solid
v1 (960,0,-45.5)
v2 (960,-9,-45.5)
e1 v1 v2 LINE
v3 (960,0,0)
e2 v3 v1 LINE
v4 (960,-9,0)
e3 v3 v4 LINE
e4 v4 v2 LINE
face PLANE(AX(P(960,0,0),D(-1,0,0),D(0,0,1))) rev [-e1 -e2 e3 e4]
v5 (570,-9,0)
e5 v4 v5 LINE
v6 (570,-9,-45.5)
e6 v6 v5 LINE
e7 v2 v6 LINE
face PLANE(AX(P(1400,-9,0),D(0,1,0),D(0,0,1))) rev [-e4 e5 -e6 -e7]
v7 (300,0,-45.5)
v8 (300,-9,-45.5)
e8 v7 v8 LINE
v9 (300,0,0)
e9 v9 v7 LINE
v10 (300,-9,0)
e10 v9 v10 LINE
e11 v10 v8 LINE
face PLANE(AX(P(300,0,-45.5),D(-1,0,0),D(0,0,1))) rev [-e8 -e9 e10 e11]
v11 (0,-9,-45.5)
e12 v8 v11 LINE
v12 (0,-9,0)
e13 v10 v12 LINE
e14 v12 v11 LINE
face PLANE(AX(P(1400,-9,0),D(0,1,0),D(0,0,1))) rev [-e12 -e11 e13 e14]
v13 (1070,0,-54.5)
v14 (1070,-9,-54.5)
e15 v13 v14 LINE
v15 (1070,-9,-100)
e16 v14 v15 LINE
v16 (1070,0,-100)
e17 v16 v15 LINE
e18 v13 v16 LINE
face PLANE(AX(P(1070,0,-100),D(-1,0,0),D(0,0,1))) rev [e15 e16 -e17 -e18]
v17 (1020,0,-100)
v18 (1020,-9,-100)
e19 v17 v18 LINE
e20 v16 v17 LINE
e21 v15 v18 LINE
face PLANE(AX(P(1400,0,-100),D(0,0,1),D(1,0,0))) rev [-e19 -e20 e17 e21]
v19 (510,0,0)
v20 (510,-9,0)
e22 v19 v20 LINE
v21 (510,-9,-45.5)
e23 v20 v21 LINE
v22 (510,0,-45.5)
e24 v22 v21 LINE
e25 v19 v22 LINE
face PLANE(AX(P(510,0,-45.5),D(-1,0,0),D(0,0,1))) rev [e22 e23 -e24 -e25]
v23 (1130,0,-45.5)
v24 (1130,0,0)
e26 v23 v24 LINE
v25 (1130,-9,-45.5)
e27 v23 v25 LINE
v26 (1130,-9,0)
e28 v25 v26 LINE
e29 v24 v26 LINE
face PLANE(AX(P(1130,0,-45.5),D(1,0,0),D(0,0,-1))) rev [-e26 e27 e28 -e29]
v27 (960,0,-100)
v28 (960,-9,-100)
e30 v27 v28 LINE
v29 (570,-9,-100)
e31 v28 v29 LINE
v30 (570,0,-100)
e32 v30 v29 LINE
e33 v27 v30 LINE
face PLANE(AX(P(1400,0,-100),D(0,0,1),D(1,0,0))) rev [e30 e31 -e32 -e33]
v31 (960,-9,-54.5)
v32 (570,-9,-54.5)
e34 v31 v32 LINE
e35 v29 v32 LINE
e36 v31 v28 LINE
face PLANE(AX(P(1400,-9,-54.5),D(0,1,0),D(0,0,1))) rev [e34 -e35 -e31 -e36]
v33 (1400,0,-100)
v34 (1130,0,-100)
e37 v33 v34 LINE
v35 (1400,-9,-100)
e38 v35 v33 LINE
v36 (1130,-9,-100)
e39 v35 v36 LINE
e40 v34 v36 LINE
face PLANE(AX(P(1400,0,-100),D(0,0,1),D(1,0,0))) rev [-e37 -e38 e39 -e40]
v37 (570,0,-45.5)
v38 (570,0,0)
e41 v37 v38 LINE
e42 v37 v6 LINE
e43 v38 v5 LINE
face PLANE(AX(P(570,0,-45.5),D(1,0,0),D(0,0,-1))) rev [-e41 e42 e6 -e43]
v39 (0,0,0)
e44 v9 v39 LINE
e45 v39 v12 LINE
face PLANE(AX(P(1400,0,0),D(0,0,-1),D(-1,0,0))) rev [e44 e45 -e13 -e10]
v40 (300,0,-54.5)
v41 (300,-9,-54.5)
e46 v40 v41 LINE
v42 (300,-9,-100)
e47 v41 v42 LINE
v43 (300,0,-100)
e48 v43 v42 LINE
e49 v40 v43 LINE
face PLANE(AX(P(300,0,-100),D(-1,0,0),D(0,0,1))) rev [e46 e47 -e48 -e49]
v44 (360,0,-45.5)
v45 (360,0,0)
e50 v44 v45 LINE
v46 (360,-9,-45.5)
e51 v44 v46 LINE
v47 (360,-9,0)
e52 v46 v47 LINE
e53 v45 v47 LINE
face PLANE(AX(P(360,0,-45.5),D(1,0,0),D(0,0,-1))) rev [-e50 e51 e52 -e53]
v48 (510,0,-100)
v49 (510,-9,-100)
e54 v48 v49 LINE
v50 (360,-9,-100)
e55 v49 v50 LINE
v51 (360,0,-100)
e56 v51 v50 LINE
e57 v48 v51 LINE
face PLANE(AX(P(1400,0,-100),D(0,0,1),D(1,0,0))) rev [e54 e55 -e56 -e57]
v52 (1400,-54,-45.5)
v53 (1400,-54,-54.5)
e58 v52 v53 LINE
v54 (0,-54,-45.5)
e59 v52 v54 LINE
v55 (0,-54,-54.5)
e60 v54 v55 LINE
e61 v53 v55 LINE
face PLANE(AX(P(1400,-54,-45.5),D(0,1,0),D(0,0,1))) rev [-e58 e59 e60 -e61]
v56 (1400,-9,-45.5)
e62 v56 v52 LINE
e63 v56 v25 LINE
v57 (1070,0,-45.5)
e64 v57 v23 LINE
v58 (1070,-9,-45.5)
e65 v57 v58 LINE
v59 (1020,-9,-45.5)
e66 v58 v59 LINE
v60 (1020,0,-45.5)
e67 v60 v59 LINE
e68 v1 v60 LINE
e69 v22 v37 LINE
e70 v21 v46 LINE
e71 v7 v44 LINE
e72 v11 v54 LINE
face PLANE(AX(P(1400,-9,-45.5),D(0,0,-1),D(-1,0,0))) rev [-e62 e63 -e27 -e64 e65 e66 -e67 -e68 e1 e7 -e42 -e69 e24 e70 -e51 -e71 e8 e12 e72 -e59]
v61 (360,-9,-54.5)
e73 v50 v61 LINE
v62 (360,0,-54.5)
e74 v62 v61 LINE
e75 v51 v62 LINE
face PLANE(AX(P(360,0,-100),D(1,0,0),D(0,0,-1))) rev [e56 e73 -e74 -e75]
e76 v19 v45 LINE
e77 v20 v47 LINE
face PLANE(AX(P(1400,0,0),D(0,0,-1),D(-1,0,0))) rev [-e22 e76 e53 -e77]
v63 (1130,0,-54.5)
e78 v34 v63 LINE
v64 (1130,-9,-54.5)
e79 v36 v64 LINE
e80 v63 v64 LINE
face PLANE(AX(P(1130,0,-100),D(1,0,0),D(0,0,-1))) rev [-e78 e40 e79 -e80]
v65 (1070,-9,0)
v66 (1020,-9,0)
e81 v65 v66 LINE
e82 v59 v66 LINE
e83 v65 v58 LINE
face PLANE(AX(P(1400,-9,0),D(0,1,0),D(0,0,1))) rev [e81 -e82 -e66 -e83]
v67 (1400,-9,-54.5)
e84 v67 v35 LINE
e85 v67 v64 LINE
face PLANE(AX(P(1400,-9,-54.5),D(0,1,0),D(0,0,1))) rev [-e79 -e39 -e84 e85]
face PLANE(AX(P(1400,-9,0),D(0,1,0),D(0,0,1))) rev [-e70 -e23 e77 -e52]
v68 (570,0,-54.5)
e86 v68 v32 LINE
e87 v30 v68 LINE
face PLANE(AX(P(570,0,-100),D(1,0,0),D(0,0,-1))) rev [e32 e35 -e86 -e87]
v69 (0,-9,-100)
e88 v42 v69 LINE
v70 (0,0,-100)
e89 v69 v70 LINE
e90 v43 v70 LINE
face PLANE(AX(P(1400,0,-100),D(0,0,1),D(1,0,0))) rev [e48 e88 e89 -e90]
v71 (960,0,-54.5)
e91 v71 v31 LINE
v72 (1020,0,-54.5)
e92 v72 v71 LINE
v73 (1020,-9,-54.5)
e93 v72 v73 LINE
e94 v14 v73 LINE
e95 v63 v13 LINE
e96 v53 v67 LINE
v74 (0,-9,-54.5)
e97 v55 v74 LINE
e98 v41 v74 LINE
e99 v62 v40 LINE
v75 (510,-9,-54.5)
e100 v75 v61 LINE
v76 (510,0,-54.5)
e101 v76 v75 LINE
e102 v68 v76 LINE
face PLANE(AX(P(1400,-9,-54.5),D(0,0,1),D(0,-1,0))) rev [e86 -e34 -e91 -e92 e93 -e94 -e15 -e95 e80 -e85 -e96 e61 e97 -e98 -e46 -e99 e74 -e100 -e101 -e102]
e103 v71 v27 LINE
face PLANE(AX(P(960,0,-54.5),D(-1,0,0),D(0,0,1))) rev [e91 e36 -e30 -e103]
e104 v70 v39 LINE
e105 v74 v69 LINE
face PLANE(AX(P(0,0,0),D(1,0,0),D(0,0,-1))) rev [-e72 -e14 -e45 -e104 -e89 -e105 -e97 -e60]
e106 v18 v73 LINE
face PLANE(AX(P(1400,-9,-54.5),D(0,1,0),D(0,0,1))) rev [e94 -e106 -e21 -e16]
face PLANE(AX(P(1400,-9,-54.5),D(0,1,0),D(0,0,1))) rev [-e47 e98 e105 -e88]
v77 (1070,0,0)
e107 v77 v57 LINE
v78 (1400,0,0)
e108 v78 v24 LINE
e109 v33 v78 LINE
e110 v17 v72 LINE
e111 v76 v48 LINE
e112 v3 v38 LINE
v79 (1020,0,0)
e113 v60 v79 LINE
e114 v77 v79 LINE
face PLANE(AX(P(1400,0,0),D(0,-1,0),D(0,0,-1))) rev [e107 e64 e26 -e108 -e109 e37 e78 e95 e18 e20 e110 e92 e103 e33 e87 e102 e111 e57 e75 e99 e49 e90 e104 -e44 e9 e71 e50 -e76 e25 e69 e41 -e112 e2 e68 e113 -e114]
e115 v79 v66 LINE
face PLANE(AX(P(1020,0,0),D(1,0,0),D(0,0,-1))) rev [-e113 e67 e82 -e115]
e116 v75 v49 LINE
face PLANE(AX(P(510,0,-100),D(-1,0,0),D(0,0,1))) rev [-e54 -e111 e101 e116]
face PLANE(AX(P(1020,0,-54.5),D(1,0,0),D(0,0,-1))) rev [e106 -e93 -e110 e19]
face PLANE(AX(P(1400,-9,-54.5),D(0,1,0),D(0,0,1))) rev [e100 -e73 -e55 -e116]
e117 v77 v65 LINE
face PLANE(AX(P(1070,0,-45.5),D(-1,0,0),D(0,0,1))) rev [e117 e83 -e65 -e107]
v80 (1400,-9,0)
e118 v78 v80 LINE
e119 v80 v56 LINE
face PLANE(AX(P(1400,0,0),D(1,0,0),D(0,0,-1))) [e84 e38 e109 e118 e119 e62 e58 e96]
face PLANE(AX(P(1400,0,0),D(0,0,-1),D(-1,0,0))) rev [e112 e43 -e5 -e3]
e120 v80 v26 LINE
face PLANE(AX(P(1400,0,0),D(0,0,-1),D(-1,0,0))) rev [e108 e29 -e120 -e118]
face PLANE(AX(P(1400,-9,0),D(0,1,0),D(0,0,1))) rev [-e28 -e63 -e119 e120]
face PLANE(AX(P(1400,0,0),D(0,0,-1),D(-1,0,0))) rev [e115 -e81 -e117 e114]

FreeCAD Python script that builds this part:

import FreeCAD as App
import Part
import Sketcher

doc = App.newDocument("Part")
body = doc.addObject("PartDesign::Body", "Body")

# Sketch on YZ plane
sketch1 = doc.addObject("Sketcher::SketchObject", "Sketch")
body.addObject(sketch1)
sketch1.AttachmentSupport = (doc.YZ_Plane, [""])
sketch1.MapMode = "FlatFace"
sketch1.addGeometry([
    Part.LineSegment(App.Vector(0, -100, 0), App.Vector(0, 0, 0)),  # 0
    Part.LineSegment(App.Vector(0, 0, 0), App.Vector(-9, 0, 0)),  # 1
    Part.LineSegment(App.Vector(-9, 0, 0), App.Vector(-9, -45.5, 0)),  # 2
    Part.LineSegment(App.Vector(-9, -45.5, 0), App.Vector(-54, -45.5, 0)),  # 3
    Part.LineSegment(App.Vector(-54, -45.5, 0), App.Vector(-54, -54.5, 0)),  # 4
    Part.LineSegment(App.Vector(-54, -54.5, 0), App.Vector(-9, -54.5, 0)),  # 5
    Part.LineSegment(App.Vector(-9, -54.5, 0), App.Vector(-9, -100, 0)),  # 6
    Part.LineSegment(App.Vector(-9, -100, 0), App.Vector(0, -100, 0)),  # 7
], False)
sketch1.addConstraint([
    Sketcher.Constraint("Coincident", 0, 2, 1, 1),
    Sketcher.Constraint("Coincident", 1, 2, 2, 1),
    Sketcher.Constraint("Coincident", 2, 2, 3, 1),
    Sketcher.Constraint("Coincident", 3, 2, 4, 1),
    Sketcher.Constraint("Coincident", 4, 2, 5, 1),
    Sketcher.Constraint("Coincident", 5, 2, 6, 1),
    Sketcher.Constraint("Coincident", 6, 2, 7, 1),
    Sketcher.Constraint("Coincident", 7, 2, 0, 1),
    Sketcher.Constraint("Vertical", 0),
    Sketcher.Constraint("Horizontal", 1),
    Sketcher.Constraint("Vertical", 2),
    Sketcher.Constraint("Horizontal", 3),
    Sketcher.Constraint("Vertical", 4),
    Sketcher.Constraint("Horizontal", 5),
    Sketcher.Constraint("Vertical", 6),
    Sketcher.Constraint("Horizontal", 7),
    Sketcher.Constraint("Coincident", 0, 2, -1, 1),
    Sketcher.Constraint("Vertical", 2, 2, 5, 2),
    Sketcher.Constraint("Equal", 7, 4),
    Sketcher.Constraint("Equal", 2, 6),
    Sketcher.Constraint("DistanceX", 1, 2, 1, 1, 9.0),
    Sketcher.Constraint("DistanceX", 3, 2, 3, 1, 45.0),
    Sketcher.Constraint("DistanceY", 0, 1, 0, 2, 100.0),
])
pad1 = doc.addObject("PartDesign::Pad", "Pad")
body.addObject(pad1)
pad1.Profile = sketch1
pad1.Length = 1400

# Sketch on XZ plane
sketch2 = doc.addObject("Sketcher::SketchObject", "Sketch001")
body.addObject(sketch2)
sketch2.AttachmentSupport = (doc.XZ_Plane, [""])
sketch2.MapMode = "FlatFace"
sketch2.AttachmentOffset = App.Placement(App.Vector(0, 0, 9), App.Rotation())
sketch2.addGeometry([
    Part.LineSegment(App.Vector(360, -45.5, 0), App.Vector(360, 0, 0)),  # 0
    Part.LineSegment(App.Vector(360, 0, 0), App.Vector(300, 0, 0)),  # 1
    Part.LineSegment(App.Vector(300, 0, 0), App.Vector(300, -45.5, 0)),  # 2
    Part.LineSegment(App.Vector(300, -45.5, 0), App.Vector(360, -45.5, 0)),  # 3
    Part.LineSegment(App.Vector(570, -45.5, 0), App.Vector(570, 0, 0)),  # 4
    Part.LineSegment(App.Vector(570, 0, 0), App.Vector(510, 0, 0)),  # 5
    Part.LineSegment(App.Vector(510, 0, 0), App.Vector(510, -45.5, 0)),  # 6
    Part.LineSegment(App.Vector(510, -45.5, 0), App.Vector(570, -45.5, 0)),  # 7
    Part.LineSegment(App.Vector(1130, -45.5, 0), App.Vector(1130, 0, 0)),  # 8
    Part.LineSegment(App.Vector(1130, 0, 0), App.Vector(1070, 0, 0)),  # 9
    Part.LineSegment(App.Vector(1070, 0, 0), App.Vector(1070, -45.5, 0)),  # 10
    Part.LineSegment(App.Vector(1070, -45.5, 0), App.Vector(1130, -45.5, 0)),  # 11
    Part.LineSegment(App.Vector(1130, -100, 0), App.Vector(1130, -54.5, 0)),  # 12
    Part.LineSegment(App.Vector(1130, -54.5, 0), App.Vector(1070, -54.5, 0)),  # 13
    Part.LineSegment(App.Vector(1070, -54.5, 0), App.Vector(1070, -100, 0)),  # 14
    Part.LineSegment(App.Vector(1070, -100, 0), App.Vector(1130, -100, 0)),  # 15
    Part.LineSegment(App.Vector(570, -100, 0), App.Vector(570, -54.5, 0)),  # 16
    Part.LineSegment(App.Vector(570, -54.5, 0), App.Vector(510, -54.5, 0)),  # 17
    Part.LineSegment(App.Vector(510, -54.5, 0), App.Vector(510, -100, 0)),  # 18
    Part.LineSegment(App.Vector(510, -100, 0), App.Vector(570, -100, 0)),  # 19
    Part.LineSegment(App.Vector(360, -100, 0), App.Vector(360, -54.5, 0)),  # 20
    Part.LineSegment(App.Vector(360, -54.5, 0), App.Vector(300, -54.5, 0)),  # 21
    Part.LineSegment(App.Vector(300, -54.5, 0), App.Vector(300, -100, 0)),  # 22
    Part.LineSegment(App.Vector(300, -100, 0), App.Vector(360, -100, 0)),  # 23
    Part.LineSegment(App.Vector(1020, -45.5, 0), App.Vector(1020, 0, 0)),  # 24
    Part.LineSegment(App.Vector(1020, 0, 0), App.Vector(960, 0, 0)),  # 25
    Part.LineSegment(App.Vector(960, 0, 0), App.Vector(960, -45.5, 0)),  # 26
    Part.LineSegment(App.Vector(960, -45.5, 0), App.Vector(1020, -45.5, 0)),  # 27
    Part.LineSegment(App.Vector(1020, -100, 0), App.Vector(1020, -54.5, 0)),  # 28
    Part.LineSegment(App.Vector(1020, -54.5, 0), App.Vector(960, -54.5, 0)),  # 29
    Part.LineSegment(App.Vector(960, -54.5, 0), App.Vector(960, -100, 0)),  # 30
    Part.LineSegment(App.Vector(960, -100, 0), App.Vector(1020, -100, 0)),  # 31
], False)
sketch2.addConstraint([
    Sketcher.Constraint("Coincident", 0, 2, 1, 1),
    Sketcher.Constraint("Coincident", 1, 2, 2, 1),
    Sketcher.Constraint("Coincident", 2, 2, 3, 1),
    Sketcher.Constraint("Coincident", 3, 2, 0, 1),
    Sketcher.Constraint("Coincident", 4, 2, 5, 1),
    Sketcher.Constraint("Coincident", 5, 2, 6, 1),
    Sketcher.Constraint("Coincident", 6, 2, 7, 1),
    Sketcher.Constraint("Coincident", 7, 2, 4, 1),
    Sketcher.Constraint("Coincident", 8, 2, 9, 1),
    Sketcher.Constraint("Coincident", 9, 2, 10, 1),
    Sketcher.Constraint("Coincident", 10, 2, 11, 1),
    Sketcher.Constraint("Coincident", 11, 2, 8, 1),
    Sketcher.Constraint("Coincident", 12, 2, 13, 1),
    Sketcher.Constraint("Coincident", 13, 2, 14, 1),
    Sketcher.Constraint("Coincident", 14, 2, 15, 1),
    Sketcher.Constraint("Coincident", 15, 2, 12, 1),
    Sketcher.Constraint("Coincident", 16, 2, 17, 1),
    Sketcher.Constraint("Coincident", 17, 2, 18, 1),
    Sketcher.Constraint("Coincident", 18, 2, 19, 1),
    Sketcher.Constraint("Coincident", 19, 2, 16, 1),
    Sketcher.Constraint("Coincident", 20, 2, 21, 1),
    Sketcher.Constraint("Coincident", 21, 2, 22, 1),
    Sketcher.Constraint("Coincident", 22, 2, 23, 1),
    Sketcher.Constraint("Coincident", 23, 2, 20, 1),
    Sketcher.Constraint("Coincident", 24, 2, 25, 1),
    Sketcher.Constraint("Coincident", 25, 2, 26, 1),
    Sketcher.Constraint("Coincident", 26, 2, 27, 1),
    Sketcher.Constraint("Coincident", 27, 2, 24, 1),
    Sketcher.Constraint("Coincident", 28, 2, 29, 1),
    Sketcher.Constraint("Coincident", 29, 2, 30, 1),
    Sketcher.Constraint("Coincident", 30, 2, 31, 1),
    Sketcher.Constraint("Coincident", 31, 2, 28, 1),
    Sketcher.Constraint("Vertical", 0),
    Sketcher.Constraint("Horizontal", 1),
    Sketcher.Constraint("Vertical", 2),
    Sketcher.Constraint("Horizontal", 3),
    Sketcher.Constraint("Vertical", 4),
    Sketcher.Constraint("Horizontal", 5),
    Sketcher.Constraint("Vertical", 6),
    Sketcher.Constraint("Horizontal", 7),
    Sketcher.Constraint("Vertical", 8),
    Sketcher.Constraint("Horizontal", 9),
    Sketcher.Constraint("Vertical", 10),
    Sketcher.Constraint("Horizontal", 11),
    Sketcher.Constraint("Vertical", 12),
    Sketcher.Constraint("Horizontal", 13),
    Sketcher.Constraint("Vertical", 14),
    Sketcher.Constraint("Horizontal", 15),
    Sketcher.Constraint("Vertical", 16),
    Sketcher.Constraint("Horizontal", 17),
    Sketcher.Constraint("Vertical", 18),
    Sketcher.Constraint("Horizontal", 19),
    Sketcher.Constraint("Vertical", 20),
    Sketcher.Constraint("Horizontal", 21),
    Sketcher.Constraint("Vertical", 22),
    Sketcher.Constraint("Horizontal", 23),
    Sketcher.Constraint("Vertical", 24),
    Sketcher.Constraint("Horizontal", 25),
    Sketcher.Constraint("Vertical", 26),
    Sketcher.Constraint("Horizontal", 27),
    Sketcher.Constraint("Vertical", 28),
    Sketcher.Constraint("Horizontal", 29),
    Sketcher.Constraint("Vertical", 30),
    Sketcher.Constraint("Horizontal", 31),
    Sketcher.Constraint("PointOnObject", 0, 2, -1),
    Sketcher.Constraint("PointOnObject", 4, 2, -1),
    Sketcher.Constraint("PointOnObject", 8, 2, -1),
    Sketcher.Constraint("PointOnObject", 24, 2, -1),
    Sketcher.Constraint("Horizontal", 3, 2, 6, 2),
    Sketcher.Constraint("Horizontal", 7, 2, 10, 2),
    Sketcher.Constraint("Horizontal", 13, 2, 16, 2),
    Sketcher.Constraint("Horizontal", 15, 2, 18, 2),
    Sketcher.Constraint("Horizontal", 17, 2, 20, 2),
    Sketcher.Constraint("Horizontal", 19, 2, 22, 2),
    Sketcher.Constraint("Horizontal", 11, 2, 26, 2),
    Sketcher.Constraint("Horizontal", 21, 2, 28, 2),
    Sketcher.Constraint("Horizontal", 23, 2, 30, 2),
    Sketcher.Constraint("Vertical", 11, 2, 12, 2),
    Sketcher.Constraint("Vertical", 10, 2, 13, 2),
    Sketcher.Constraint("Vertical", 7, 2, 16, 2),
    Sketcher.Constraint("Vertical", 6, 2, 17, 2),
    Sketcher.Constraint("Vertical", 3, 2, 20, 2),
    Sketcher.Constraint("Vertical", 2, 2, 21, 2),
    Sketcher.Constraint("Vertical", 27, 2, 28, 2),
    Sketcher.Constraint("Vertical", 26, 2, 29, 2),
    Sketcher.Constraint("Equal", 3, 5),
    Sketcher.Constraint("Equal", 7, 9),
    Sketcher.Constraint("Equal", 23, 25),
    Sketcher.Constraint("Equal", 10, 12),
    Sketcher.Constraint("DistanceX", 1, 2, 1, 1, 60.0),
    Sketcher.Constraint("DistanceY", 0, 1, 0, 2, 45.5),
    Sketcher.Constraint("DistanceX", -1, 1, 0, 2, 360.0),
    Sketcher.Constraint("DistanceX", -1, 1, 4, 2, 570.0),
    Sketcher.Constraint("DistanceX", -1, 1, 8, 2, 1130.0),
    Sketcher.Constraint("DistanceY", 14, 2, -1, 1, 100.0),
    Sketcher.Constraint("DistanceX", -1, 1, 24, 2, 1020.0),
])
pocket1 = doc.addObject("PartDesign::Pocket", "Pocket")
body.addObject(pocket1)
pocket1.Profile = sketch2
pocket1.Type = "ThroughAll"

doc.recompute()
